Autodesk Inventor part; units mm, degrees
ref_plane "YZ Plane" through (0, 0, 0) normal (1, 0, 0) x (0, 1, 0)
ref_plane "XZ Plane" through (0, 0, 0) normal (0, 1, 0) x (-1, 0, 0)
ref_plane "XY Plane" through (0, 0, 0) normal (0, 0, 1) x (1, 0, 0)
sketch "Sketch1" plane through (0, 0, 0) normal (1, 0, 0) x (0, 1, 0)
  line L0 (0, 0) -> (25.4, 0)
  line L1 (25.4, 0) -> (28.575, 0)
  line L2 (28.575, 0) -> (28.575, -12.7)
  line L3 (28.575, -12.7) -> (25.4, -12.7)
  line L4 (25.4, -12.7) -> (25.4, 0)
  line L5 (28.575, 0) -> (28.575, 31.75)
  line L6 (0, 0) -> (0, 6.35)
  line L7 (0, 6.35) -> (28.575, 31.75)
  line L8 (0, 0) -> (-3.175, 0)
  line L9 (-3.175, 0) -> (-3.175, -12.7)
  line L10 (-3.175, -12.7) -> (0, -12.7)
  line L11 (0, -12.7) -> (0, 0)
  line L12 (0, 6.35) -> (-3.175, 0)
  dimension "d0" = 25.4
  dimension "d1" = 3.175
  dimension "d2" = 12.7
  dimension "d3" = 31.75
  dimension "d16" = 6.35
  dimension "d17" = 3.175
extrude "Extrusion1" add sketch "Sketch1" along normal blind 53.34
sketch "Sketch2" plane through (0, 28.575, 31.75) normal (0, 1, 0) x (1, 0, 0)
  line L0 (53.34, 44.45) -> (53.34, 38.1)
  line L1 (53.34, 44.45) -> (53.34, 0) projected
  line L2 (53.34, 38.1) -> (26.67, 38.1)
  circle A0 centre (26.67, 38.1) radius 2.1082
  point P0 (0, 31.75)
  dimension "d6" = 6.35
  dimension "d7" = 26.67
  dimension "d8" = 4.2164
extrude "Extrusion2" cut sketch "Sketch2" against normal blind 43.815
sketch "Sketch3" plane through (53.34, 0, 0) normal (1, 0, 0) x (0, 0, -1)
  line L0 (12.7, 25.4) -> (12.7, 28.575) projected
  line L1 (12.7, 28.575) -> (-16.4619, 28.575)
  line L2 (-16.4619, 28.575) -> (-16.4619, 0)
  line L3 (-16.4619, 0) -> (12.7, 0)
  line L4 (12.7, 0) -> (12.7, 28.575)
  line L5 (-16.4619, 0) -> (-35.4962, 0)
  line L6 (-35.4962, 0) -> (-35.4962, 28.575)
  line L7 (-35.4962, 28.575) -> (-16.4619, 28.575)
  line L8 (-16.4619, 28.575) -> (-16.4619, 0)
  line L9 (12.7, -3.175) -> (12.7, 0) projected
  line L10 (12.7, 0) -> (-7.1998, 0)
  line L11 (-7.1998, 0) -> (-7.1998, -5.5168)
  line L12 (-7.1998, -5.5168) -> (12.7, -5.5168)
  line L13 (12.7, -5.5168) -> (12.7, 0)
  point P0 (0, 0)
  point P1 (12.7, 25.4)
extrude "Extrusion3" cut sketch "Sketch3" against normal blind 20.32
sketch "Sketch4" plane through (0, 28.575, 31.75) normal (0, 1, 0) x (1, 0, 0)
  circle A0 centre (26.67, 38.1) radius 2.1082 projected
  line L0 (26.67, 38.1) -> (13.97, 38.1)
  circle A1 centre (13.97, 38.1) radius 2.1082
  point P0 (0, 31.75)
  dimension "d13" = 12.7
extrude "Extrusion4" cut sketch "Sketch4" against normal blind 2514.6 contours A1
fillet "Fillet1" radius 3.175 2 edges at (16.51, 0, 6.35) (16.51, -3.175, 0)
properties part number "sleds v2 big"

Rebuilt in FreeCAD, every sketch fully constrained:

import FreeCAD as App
import Part
import Sketcher

V = App.Vector
Q = App.Units.Quantity


def edges_at(feature, points):
    """Names of the edges that pass closest to the given points."""
    edges = feature.Shape.Edges
    near = lambda p: min(range(len(edges)), key=lambda i: edges[i].distToShape(Part.Vertex(*p))[0])
    return sorted({f"Edge{near(p) + 1}" for p in points})


def add_polygon(sketch, points):
    """Adds a closed chain of lines whose ends are joined by coincident constraints."""
    first, n = sketch.GeometryCount, len(points)
    for a, b in zip(points, points[1:] + points[:1]):
        sketch.addGeometry(Part.LineSegment(App.Vector(*a, 0), App.Vector(*b, 0)), False)
    for i in range(n):
        sketch.addConstraint(Sketcher.Constraint("Coincident", first + i, 2, first + (i + 1) % n, 1))

doc = App.newDocument("Part")
body = doc.addObject("PartDesign::Body", "Body")

# Sketch on YZ plane
sketch1 = body.newObject("Sketcher::SketchObject", "Sketch")
sketch1.AttachmentSupport = (doc.getObject("YZ_Plane"), [""])
sketch1.MapMode = "FlatFace"
add_polygon(sketch1, [(28.6, 31.8), (0, 6.3), (-3.2, 0), (-3.2, -12.7), (0, -12.7), (0, 0), (25.4, 0), (25.4, -12.7), (28.6, -12.7)])  # lines 0-8
sketch1.addConstraint([
    Sketcher.Constraint("Vertical", 2),
    Sketcher.Constraint("Horizontal", 3),
    Sketcher.Constraint("Vertical", 4),
    Sketcher.Constraint("Horizontal", 5),
    Sketcher.Constraint("Vertical", 6),
    Sketcher.Constraint("Horizontal", 7),
    Sketcher.Constraint("Vertical", 8),
    Sketcher.Constraint("Coincident", 4, 2, -1, 1),
    Sketcher.Constraint("PointOnObject", 0, 2, -2),
    Sketcher.Constraint("PointOnObject", 1, 2, -1),
    Sketcher.Constraint("Horizontal", 3, 2, 6, 2),
    Sketcher.Constraint("Equal", 3, 7),
    Sketcher.Constraint("DistanceX", 5, 1, 5, 2, Q("1 in")),
    Sketcher.Constraint("DistanceY", 2, 2, 2, 1, Q("0.5 in")),
    Sketcher.Constraint("DistanceY", 0, 2, 8, 2, Q("1 in")),
    Sketcher.Constraint("DistanceX", 3, 1, 3, 2, Q("0.125 in")),
    Sketcher.Constraint("DistanceY", -1, 1, 0, 2, Q("0.25 in")),
])
pad1 = body.newObject("PartDesign::Pad", "Pad")
pad1.Profile = sketch1
pad1.Length = Q("2.1 in")

# Sketch on XZ plane
sketch2 = body.newObject("Sketcher::SketchObject", "Sketch001")
sketch2.AttachmentSupport = (doc.getObject("XZ_Plane"), [""])
sketch2.MapMode = "FlatFace"
sketch2.AttachmentOffset = App.Placement(V(0, 0, -1.125 * 25.4), App.Rotation())
sketch2.addGeometry(Part.Circle(V(26.7, -6.3, 0), V(0, 0, 1), 2.1), False)
sketch2.addConstraint([
    Sketcher.Constraint("Diameter", 0, Q("0.166 in")),
    Sketcher.Constraint("DistanceX", -1, 1, 0, 3, Q("1.05 in")),
    Sketcher.Constraint("DistanceY", 0, 3, -1, 1, Q("0.25 in")),
])
pocket1 = body.newObject("PartDesign::Pocket", "Pocket")
pocket1.Profile = sketch2
pocket1.Length = Q("1.725 in")
pocket1.Reversed = True

# Sketch on YZ plane
sketch3 = body.newObject("Sketcher::SketchObject", "Sketch002")
sketch3.AttachmentSupport = (doc.getObject("YZ_Plane"), [""])
sketch3.MapMode = "FlatFace"
sketch3.AttachmentOffset = App.Placement(V(0, 0, 2.1 * 25.4), App.Rotation())
add_polygon(sketch3, [(29, -13), (29, 35), (0, 35), (0, 7), (-6, 7), (-6, -13)])  # lines 0-5
sketch3.addConstraint([
    Sketcher.Constraint("Vertical", 0),
    Sketcher.Constraint("Horizontal", 1),
    Sketcher.Constraint("Vertical", 2),
    Sketcher.Constraint("Horizontal", 3),
    Sketcher.Constraint("Vertical", 4),
    Sketcher.Constraint("Horizontal", 5),
    Sketcher.Constraint("PointOnObject", 1, 2, -2),
    Sketcher.Constraint("DistanceY", 4, 2, -1, 1, Q("0.5 in")),
    Sketcher.Constraint("DistanceX", 1, 2, 1, 1, Q("1.125 in")),
    Sketcher.Constraint("DistanceX", 3, 2, 3, 1, Q("0.2172 in")),
    Sketcher.Constraint("DistanceY", 0, 1, 0, 2, Q("1.8975 in")),
    Sketcher.Constraint("DistanceY", 2, 2, 2, 1, 28.2964),
])
pocket2 = body.newObject("PartDesign::Pocket", "Pocket001")
pocket2.Profile = sketch3
pocket2.Length = Q("0.8 in")

# Sketch on XZ plane
sketch4 = body.newObject("Sketcher::SketchObject", "Sketch003")
sketch4.AttachmentSupport = (doc.getObject("XZ_Plane"), [""])
sketch4.MapMode = "FlatFace"
sketch4.AttachmentOffset = App.Placement(V(0, 0, -1.125 * 25.4), App.Rotation())
sketch4.addGeometry(Part.Circle(V(14, -6.3, 0), V(0, 0, 1), 2.1), False)
sketch4.addConstraint([
    Sketcher.Constraint("Diameter", 0, Q("0.166 in")),
    Sketcher.Constraint("DistanceX", -1, 1, 0, 3, Q("0.55 in")),
    Sketcher.Constraint("DistanceY", 0, 3, -1, 1, Q("0.25 in")),
])
pocket3 = body.newObject("PartDesign::Pocket", "Pocket002")
pocket3.Profile = sketch4
pocket3.Length = Q("99 in")
pocket3.Reversed = True
doc.recompute()

fillet = body.newObject("PartDesign::Fillet", "Fillet")
fillet.Base = (pocket3, edges_at(pocket3, [(16.51, 0, 6.35), (16.51, -3.175, 0)]))
fillet.Radius = Q("0.125 in")

doc.recompute()
